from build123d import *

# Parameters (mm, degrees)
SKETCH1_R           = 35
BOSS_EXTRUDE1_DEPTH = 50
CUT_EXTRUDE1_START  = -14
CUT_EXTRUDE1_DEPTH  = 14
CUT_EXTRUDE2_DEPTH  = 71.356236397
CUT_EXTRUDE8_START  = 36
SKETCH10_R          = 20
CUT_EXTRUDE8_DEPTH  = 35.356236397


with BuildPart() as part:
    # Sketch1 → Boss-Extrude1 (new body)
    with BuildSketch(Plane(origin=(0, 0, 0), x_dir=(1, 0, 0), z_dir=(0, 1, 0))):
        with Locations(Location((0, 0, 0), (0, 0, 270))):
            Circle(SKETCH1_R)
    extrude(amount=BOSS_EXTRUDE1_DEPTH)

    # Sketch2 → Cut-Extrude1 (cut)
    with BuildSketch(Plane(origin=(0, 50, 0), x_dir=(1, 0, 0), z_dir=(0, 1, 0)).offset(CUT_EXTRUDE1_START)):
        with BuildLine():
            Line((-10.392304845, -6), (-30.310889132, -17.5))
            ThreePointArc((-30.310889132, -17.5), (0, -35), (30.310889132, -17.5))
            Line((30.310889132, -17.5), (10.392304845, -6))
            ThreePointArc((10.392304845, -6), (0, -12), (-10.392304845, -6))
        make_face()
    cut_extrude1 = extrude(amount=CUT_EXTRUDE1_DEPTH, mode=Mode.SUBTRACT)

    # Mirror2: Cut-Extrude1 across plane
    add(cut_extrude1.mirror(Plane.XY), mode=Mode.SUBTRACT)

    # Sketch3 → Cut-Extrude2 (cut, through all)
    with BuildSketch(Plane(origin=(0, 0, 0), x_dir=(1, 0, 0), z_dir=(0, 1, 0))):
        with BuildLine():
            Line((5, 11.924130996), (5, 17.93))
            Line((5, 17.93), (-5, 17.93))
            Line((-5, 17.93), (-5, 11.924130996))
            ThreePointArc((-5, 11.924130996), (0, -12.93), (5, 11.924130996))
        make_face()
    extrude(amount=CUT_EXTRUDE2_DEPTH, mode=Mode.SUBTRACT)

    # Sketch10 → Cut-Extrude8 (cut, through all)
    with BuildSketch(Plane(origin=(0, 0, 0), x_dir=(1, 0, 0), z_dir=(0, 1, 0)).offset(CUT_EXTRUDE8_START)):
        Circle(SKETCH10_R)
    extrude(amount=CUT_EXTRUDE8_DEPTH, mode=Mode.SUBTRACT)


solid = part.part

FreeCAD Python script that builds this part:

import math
import FreeCAD as App
import Part
import Sketcher
from FreeCAD import Vector
Q = App.Units.Quantity

doc = App.newDocument("Part")
params = doc.addObject("Spreadsheet::Sheet", "Params")
for row, (alias, value) in enumerate([
    ("sketch1_diameter", "70 mm"),
    ("pad1_length", "50 mm"),
    ("sketch2_radius", "35 mm"),
    ("sketch2_radius2", "12 mm"),
    ("pocket1_length", "14 mm"),
    ("sketch3_width", "10 mm"),
    ("sketch3_radius", "12.93 mm"),
    ("sketch4_diameter", "40 mm"),
], start=1):
    params.set(f"A{row}", alias)
    params.set(f"B{row}", "=" + value)
    params.setAlias(f"B{row}", alias)

body = doc.addObject("PartDesign::Body", "Body")

# Sketch on XZ plane
sketch1 = doc.addObject("Sketcher::SketchObject", "Sketch")
body.addObject(sketch1)
sketch1.AttachmentSupport = (doc.XZ_Plane, [""])
sketch1.MapMode = "FlatFace"
sketch1.addGeometry(Part.Circle(Vector(0, 0, 0), Vector(0, 0, 1), 35), False)
sketch1.addConstraint([
    Sketcher.Constraint("Coincident", 0, 3, -1, 1),
    Sketcher.Constraint("Diameter", 0, Q("70 mm")),
])
sketch1.setExpression("Constraints[1]", "Params.sketch1_diameter")
pad1 = doc.addObject("PartDesign::Pad", "Pad")
body.addObject(pad1)
pad1.Profile = sketch1
pad1.setExpression("Length", "Params.pad1_length")
pad1.Reversed = True

# Sketch on XZ plane
sketch2 = doc.addObject("Sketcher::SketchObject", "Sketch001")
body.addObject(sketch2)
sketch2.AttachmentSupport = (doc.XZ_Plane, [""])
sketch2.MapMode = "FlatFace"
sketch2.AttachmentOffset = App.Placement(Vector(0, 0, -36), App.Rotation())
sketch2.addGeometry([
    Part.LineSegment(Vector(-10, 6, 0), Vector(-30, 18, 0)),
    Part.ArcOfCircle(Part.Circle(Vector(0, 0, 0), Vector(0, 0, 1), 35), math.radians(30), math.radians(150)),
    Part.LineSegment(Vector(30, 18, 0), Vector(10, 6, 0)),
    Part.ArcOfCircle(Part.Circle(Vector(0, 0, 0), Vector(0, 0, 1), 12), math.radians(30), math.radians(150)),
], False)
sketch2.addConstraint([
    Sketcher.Constraint("Coincident", 0, 2, 1, 2),
    Sketcher.Constraint("Coincident", 1, 1, 2, 1),
    Sketcher.Constraint("Coincident", 2, 2, 3, 1),
    Sketcher.Constraint("Coincident", 3, 2, 0, 1),
    Sketcher.Constraint("Coincident", 1, 3, -1, 1),
    Sketcher.Constraint("Coincident", 3, 3, -1, 1),
    Sketcher.Constraint("Horizontal", 0, 2, 1, 1),
    Sketcher.Constraint("Horizontal", 2, 2, 3, 2),
    Sketcher.Constraint("Radius", 1, Q("35 mm")),
    Sketcher.Constraint("Radius", 3, Q("12 mm")),
    Sketcher.Constraint("Angle", 0, Q("150 deg")),
    Sketcher.Constraint("DistanceY", -1, 1, 2, 2, Q("6 mm")),
])
sketch2.setExpression("Constraints[8]", "Params.sketch2_radius")
sketch2.setExpression("Constraints[9]", "Params.sketch2_radius2")
pocket1 = doc.addObject("PartDesign::Pocket", "Pocket")
body.addObject(pocket1)
pocket1.Profile = sketch2
pocket1.setExpression("Length", "Params.pocket1_length")
doc.recompute()

mirrored = doc.addObject("PartDesign::Mirrored", "Mirrored")
body.addObject(mirrored)
mirrored.Originals = [pocket1]
mirrored.MirrorPlane = (doc.XY_Plane, [""])
body.Tip = mirrored

# Sketch on XZ plane
sketch3 = doc.addObject("Sketcher::SketchObject", "Sketch002")
body.addObject(sketch3)
sketch3.AttachmentSupport = (doc.XZ_Plane, [""])
sketch3.MapMode = "FlatFace"
sketch3.addGeometry([
    Part.LineSegment(Vector(5, -12, 0), Vector(5, -18, 0)),
    Part.LineSegment(Vector(5, -18, 0), Vector(-5, -18, 0)),
    Part.LineSegment(Vector(-5, -18, 0), Vector(-5, -12, 0)),
    Part.ArcOfCircle(Part.Circle(Vector(0, 0, 0), Vector(0, 0, 1), 13), math.radians(-67), math.radians(247)),
], False)
sketch3.addConstraint([
    Sketcher.Constraint("Coincident", 0, 2, 1, 1),
    Sketcher.Constraint("Coincident", 1, 2, 2, 1),
    Sketcher.Constraint("Coincident", 2, 2, 3, 2),
    Sketcher.Constraint("Coincident", 3, 1, 0, 1),
    Sketcher.Constraint("Vertical", 0),
    Sketcher.Constraint("Horizontal", 1),
    Sketcher.Constraint("Vertical", 2),
    Sketcher.Constraint("Coincident", 3, 3, -1, 1),
    Sketcher.Constraint("Horizontal", 2, 2, 3, 1),
    Sketcher.Constraint("DistanceX", 1, 2, 1, 1, Q("10 mm")),
    Sketcher.Constraint("Radius", 3, Q("12.93 mm")),
    Sketcher.Constraint("DistanceY", 0, 2, -1, 1, Q("17.93 mm")),
])
sketch3.setExpression("Constraints[9]", "Params.sketch3_width")
sketch3.setExpression("Constraints[10]", "Params.sketch3_radius")
pocket2 = doc.addObject("PartDesign::Pocket", "Pocket001")
body.addObject(pocket2)
pocket2.Profile = sketch3
pocket2.Type = "ThroughAll"

# Sketch on XZ plane
sketch4 = doc.addObject("Sketcher::SketchObject", "Sketch003")
body.addObject(sketch4)
sketch4.AttachmentSupport = (doc.XZ_Plane, [""])
sketch4.MapMode = "FlatFace"
sketch4.AttachmentOffset = App.Placement(Vector(0, 0, -36), App.Rotation())
sketch4.addGeometry(Part.Circle(Vector(0, 0, 0), Vector(0, 0, 1), 20), False)
sketch4.addConstraint([
    Sketcher.Constraint("Coincident", 0, 3, -1, 1),
    Sketcher.Constraint("Diameter", 0, Q("40 mm")),
])
sketch4.setExpression("Constraints[1]", "Params.sketch4_diameter")
pocket3 = doc.addObject("PartDesign::Pocket", "Pocket002")
body.addObject(pocket3)
pocket3.Profile = sketch4
pocket3.Type = "ThroughAll"

doc.recompute()
